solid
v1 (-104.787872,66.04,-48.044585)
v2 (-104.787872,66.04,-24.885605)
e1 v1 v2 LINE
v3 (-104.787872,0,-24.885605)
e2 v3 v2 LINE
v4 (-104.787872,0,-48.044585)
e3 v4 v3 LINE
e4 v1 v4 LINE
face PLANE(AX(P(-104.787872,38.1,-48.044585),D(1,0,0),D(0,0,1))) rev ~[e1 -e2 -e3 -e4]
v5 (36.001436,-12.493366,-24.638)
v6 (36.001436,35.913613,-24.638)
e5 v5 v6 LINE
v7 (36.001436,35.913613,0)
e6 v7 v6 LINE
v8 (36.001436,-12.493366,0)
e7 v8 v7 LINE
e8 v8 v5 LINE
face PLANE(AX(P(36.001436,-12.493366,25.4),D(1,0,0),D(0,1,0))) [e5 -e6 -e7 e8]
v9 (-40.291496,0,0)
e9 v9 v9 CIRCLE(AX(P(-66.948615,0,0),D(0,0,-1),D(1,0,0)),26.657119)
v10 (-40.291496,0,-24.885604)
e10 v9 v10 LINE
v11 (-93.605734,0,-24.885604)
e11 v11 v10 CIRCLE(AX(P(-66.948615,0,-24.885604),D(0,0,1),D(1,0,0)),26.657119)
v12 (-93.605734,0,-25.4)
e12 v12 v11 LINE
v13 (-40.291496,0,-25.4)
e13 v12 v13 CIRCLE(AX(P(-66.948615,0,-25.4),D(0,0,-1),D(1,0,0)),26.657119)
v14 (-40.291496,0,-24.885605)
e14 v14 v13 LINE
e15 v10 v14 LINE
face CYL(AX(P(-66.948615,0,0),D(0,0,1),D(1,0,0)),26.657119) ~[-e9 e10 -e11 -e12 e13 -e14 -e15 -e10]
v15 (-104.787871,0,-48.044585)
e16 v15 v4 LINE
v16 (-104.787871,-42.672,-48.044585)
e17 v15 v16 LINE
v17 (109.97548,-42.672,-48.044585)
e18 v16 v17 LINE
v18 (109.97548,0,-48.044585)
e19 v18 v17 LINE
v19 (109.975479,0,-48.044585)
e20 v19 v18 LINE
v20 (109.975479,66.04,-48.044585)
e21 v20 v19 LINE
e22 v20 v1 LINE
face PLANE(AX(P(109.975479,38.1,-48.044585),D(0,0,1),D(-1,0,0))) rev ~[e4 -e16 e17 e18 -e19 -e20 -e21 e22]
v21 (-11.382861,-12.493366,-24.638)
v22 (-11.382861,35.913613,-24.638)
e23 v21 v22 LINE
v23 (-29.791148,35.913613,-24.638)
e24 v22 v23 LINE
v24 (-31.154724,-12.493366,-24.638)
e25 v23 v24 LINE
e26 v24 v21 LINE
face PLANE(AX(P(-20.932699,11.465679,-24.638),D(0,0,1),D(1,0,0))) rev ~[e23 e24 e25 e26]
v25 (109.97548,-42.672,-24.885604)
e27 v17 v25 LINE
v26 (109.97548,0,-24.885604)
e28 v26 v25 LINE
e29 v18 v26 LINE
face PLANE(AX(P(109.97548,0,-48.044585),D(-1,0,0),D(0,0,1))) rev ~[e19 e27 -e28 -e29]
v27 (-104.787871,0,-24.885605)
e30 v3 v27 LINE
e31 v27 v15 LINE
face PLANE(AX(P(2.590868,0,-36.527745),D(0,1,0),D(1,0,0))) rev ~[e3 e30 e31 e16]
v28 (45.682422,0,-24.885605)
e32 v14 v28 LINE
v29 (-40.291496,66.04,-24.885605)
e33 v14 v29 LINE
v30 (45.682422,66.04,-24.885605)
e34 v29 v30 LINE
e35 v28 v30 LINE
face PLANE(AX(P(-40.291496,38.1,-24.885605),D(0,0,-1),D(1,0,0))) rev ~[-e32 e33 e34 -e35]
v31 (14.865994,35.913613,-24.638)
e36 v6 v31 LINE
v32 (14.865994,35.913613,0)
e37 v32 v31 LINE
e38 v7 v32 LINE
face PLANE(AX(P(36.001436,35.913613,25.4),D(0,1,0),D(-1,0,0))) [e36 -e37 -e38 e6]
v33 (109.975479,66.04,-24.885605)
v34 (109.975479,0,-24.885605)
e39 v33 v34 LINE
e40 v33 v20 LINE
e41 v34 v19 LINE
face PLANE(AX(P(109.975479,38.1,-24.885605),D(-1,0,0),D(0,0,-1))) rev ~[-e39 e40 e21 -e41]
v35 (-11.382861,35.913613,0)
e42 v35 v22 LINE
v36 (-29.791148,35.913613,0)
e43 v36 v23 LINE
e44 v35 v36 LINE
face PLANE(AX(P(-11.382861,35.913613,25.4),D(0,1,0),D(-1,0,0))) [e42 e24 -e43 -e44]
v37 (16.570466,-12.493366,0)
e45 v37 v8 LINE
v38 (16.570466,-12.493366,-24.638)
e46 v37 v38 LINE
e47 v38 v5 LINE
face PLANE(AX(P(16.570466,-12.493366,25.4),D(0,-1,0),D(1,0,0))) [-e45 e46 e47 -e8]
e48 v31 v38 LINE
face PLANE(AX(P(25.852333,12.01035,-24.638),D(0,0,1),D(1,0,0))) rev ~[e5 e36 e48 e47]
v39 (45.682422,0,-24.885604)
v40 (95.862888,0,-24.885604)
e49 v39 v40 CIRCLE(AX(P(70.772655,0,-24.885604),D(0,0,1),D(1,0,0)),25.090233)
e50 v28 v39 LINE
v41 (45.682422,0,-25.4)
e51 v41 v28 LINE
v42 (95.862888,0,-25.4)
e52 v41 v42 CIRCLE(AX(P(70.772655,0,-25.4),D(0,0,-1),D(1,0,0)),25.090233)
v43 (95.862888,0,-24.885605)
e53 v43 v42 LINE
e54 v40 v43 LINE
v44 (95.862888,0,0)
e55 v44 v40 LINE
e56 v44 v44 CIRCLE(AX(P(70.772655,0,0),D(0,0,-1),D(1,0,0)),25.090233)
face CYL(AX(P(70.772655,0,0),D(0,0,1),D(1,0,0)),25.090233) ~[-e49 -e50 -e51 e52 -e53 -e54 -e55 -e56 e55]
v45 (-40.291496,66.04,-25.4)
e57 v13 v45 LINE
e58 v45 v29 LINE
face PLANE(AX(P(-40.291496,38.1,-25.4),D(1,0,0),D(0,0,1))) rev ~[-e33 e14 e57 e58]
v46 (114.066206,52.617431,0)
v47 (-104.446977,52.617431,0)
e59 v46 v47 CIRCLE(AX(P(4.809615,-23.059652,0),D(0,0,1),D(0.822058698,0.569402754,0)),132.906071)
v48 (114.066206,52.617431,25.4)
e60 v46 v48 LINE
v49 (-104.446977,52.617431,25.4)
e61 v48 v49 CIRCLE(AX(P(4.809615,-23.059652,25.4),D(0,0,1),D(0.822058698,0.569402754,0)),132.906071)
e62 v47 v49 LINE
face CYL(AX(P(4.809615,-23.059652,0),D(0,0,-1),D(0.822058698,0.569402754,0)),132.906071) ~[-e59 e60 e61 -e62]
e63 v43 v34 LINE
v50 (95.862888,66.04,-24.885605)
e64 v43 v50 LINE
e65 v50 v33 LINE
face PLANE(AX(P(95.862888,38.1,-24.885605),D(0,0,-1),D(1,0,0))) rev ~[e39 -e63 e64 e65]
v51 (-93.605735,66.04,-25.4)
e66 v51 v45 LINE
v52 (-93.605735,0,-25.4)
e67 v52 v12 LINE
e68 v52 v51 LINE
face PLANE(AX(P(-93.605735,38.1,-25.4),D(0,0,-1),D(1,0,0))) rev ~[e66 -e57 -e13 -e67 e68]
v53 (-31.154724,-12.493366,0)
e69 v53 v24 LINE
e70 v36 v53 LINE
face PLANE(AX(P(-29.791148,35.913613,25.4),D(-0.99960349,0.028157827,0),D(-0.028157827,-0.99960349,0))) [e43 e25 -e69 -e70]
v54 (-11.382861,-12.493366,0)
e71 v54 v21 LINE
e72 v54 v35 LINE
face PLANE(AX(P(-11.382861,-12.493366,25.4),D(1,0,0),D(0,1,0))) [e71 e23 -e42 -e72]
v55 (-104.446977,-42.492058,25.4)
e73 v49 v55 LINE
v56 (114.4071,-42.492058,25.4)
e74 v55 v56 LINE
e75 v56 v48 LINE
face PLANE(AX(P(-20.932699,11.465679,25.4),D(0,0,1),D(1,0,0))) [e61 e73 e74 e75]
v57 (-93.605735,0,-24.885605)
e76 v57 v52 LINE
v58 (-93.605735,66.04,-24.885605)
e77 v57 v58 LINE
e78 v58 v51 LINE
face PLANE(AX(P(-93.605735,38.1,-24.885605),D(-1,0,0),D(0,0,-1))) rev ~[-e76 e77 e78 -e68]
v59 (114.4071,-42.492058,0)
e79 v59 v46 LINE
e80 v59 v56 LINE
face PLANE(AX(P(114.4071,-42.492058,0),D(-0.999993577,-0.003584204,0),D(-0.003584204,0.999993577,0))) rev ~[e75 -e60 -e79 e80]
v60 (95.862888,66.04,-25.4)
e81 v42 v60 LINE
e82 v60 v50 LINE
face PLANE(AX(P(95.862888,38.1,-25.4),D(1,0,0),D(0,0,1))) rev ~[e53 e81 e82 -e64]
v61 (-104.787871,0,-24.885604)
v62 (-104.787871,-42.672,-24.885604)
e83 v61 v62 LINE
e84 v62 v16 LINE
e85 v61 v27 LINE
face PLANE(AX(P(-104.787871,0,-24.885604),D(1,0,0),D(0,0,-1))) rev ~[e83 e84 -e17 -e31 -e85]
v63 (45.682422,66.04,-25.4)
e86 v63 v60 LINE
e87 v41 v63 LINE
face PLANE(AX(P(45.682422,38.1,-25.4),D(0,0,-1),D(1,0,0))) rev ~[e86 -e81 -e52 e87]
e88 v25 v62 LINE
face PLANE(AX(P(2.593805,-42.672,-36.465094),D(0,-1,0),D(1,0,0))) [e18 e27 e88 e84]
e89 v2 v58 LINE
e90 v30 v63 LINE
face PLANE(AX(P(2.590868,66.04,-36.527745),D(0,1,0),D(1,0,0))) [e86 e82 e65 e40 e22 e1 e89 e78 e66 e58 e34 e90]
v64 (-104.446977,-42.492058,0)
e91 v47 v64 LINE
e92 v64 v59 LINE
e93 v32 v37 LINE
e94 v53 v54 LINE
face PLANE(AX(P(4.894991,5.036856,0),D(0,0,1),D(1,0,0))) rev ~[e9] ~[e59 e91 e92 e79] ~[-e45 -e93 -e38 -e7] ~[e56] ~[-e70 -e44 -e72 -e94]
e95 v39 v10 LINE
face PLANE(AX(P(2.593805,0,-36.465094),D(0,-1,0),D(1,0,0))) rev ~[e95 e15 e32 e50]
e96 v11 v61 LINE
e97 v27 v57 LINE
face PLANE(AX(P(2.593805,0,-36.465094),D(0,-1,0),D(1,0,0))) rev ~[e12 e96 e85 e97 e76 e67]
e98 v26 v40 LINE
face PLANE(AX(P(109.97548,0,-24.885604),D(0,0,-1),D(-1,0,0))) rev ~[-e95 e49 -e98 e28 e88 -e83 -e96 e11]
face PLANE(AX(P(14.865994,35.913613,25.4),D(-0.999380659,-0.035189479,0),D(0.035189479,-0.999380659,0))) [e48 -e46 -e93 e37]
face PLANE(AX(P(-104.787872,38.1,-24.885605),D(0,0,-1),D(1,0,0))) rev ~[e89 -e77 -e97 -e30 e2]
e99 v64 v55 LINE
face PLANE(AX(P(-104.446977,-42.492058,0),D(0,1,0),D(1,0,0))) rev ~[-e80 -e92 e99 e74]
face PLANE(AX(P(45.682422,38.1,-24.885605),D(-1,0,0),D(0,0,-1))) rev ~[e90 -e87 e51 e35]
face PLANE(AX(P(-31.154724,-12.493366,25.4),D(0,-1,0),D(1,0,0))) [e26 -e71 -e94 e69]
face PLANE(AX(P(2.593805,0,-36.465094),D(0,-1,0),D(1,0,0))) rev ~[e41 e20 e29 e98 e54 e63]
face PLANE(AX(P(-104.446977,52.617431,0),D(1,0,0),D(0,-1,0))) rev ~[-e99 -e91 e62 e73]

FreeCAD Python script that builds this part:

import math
import FreeCAD as App
import Part
import Sketcher

V = App.Vector
Q = App.Units.Quantity

doc = App.newDocument("Part")
body = doc.addObject("PartDesign::Body", "Body")

# Sketch on XY plane
sketch1 = body.newObject("Sketcher::SketchObject", "Sketch")
sketch1.AttachmentSupport = (doc.getObject("XY_Plane"), [""])
sketch1.MapMode = "FlatFace"
sketch1.addGeometry([
    Part.LineSegment(V(114.4071, -42.492058, 0), V(114.066206, 52.617431, 0)),
    Part.ArcOfCircle(Part.Circle(V(4.809615, -23.059652, 0), V(0, 0, 1), 132.906071), math.radians(34.708588), math.radians(145.291412)),
    Part.LineSegment(V(-104.446977, 52.617431, 0), V(-104.446977, -42.492058, 0)),
    Part.LineSegment(V(-104.446977, -42.492058, 0), V(114.4071, -42.492058, 0)),
], False)
sketch1.addConstraint([
    Sketcher.Constraint("Coincident", 0, 2, 1, 1),
    Sketcher.Constraint("Coincident", 1, 2, 2, 1),
    Sketcher.Constraint("Coincident", 2, 2, 3, 1),
    Sketcher.Constraint("Coincident", 3, 2, 0, 1),
    Sketcher.Constraint("Vertical", 2),
    Sketcher.Constraint("Horizontal", 3),
    Sketcher.Constraint("Radius", 1, 132.906071),
    Sketcher.Constraint("Distance", 0, 95.1101),
    Sketcher.Constraint("DistanceY", 2, 2, 2, 1, 95.109489),
    Sketcher.Constraint("DistanceX", -1, 1, 3, 2, 114.4071),
    Sketcher.Constraint("DistanceX", 3, 1, 3, 2, 218.854077),
    Sketcher.Constraint("DistanceY", 1, 3, -1, 1, 23.059652),
    Sketcher.Constraint("DistanceY", -1, 1, 0, 2, 52.617431),
])
pad1 = body.newObject("PartDesign::Pad", "Pad")
pad1.Profile = sketch1
pad1.Length = Q("1 in")

# Sketch on XY plane
sketch2 = body.newObject("Sketcher::SketchObject", "Sketch001")
sketch2.AttachmentSupport = (doc.getObject("XY_Plane"), [""])
sketch2.MapMode = "FlatFace"
sketch2.AttachmentOffset = App.Placement(V(0, 0, 1 * 25.4), App.Rotation())
sketch2.addGeometry([
    Part.LineSegment(V(-30, 36, 0), V(-31, -12, 0)),  # 0
    Part.LineSegment(V(-31, -12, 0), V(-11, -12, 0)),  # 1
    Part.LineSegment(V(-11, -12, 0), V(-11, 36, 0)),  # 2
    Part.LineSegment(V(-11, 36, 0), V(-30, 36, 0)),  # 3
    Part.LineSegment(V(36, 36, 0), V(15, 36, 0)),  # 4
    Part.LineSegment(V(15, 36, 0), V(17, -12, 0)),  # 5
    Part.LineSegment(V(17, -12, 0), V(36, -12, 0)),  # 6
    Part.LineSegment(V(36, -12, 0), V(36, 36, 0)),  # 7
], False)
sketch2.addConstraint([
    Sketcher.Constraint("Coincident", 0, 2, 1, 1),
    Sketcher.Constraint("Coincident", 1, 2, 2, 1),
    Sketcher.Constraint("Coincident", 2, 2, 3, 1),
    Sketcher.Constraint("Coincident", 3, 2, 0, 1),
    Sketcher.Constraint("Coincident", 4, 2, 5, 1),
    Sketcher.Constraint("Coincident", 5, 2, 6, 1),
    Sketcher.Constraint("Coincident", 6, 2, 7, 1),
    Sketcher.Constraint("Coincident", 7, 2, 4, 1),
    Sketcher.Constraint("Horizontal", 1),
    Sketcher.Constraint("Vertical", 2),
    Sketcher.Constraint("Horizontal", 3),
    Sketcher.Constraint("Horizontal", 4),
    Sketcher.Constraint("Horizontal", 6),
    Sketcher.Constraint("Vertical", 7),
    Sketcher.Constraint("Horizontal", 3, 2, 4, 2),
    Sketcher.Constraint("Horizontal", 1, 2, 5, 2),
    Sketcher.Constraint("DistanceX", 4, 2, 4, 1, 21.135442),
    Sketcher.Constraint("DistanceX", 6, 1, 6, 2, 19.43097),
    Sketcher.Constraint("DistanceY", 2, 1, 2, 2, 48.406979),
    Sketcher.Constraint("Distance", 0, 48.42618),
    Sketcher.Constraint("DistanceX", 1, 1, 1, 2, 19.771863),
    Sketcher.Constraint("DistanceX", 1, 2, -1, 1, 11.382861),
    Sketcher.Constraint("DistanceX", 0, 2, 4, 2, 46.020718),
    Sketcher.Constraint("DistanceY", 0, 2, -1, 1, 12.493366),
])
pad2 = body.newObject("PartDesign::Pad", "Pad001")
pad2.Profile = sketch2
pad2.Length = Q("1.97 in")
pad2.Reversed = True

# Sketch on XY plane
sketch3 = body.newObject("Sketcher::SketchObject", "Sketch002")
sketch3.AttachmentSupport = (doc.getObject("XY_Plane"), [""])
sketch3.MapMode = "FlatFace"
sketch3.addGeometry([
    Part.Circle(V(71, 0, 0), V(0, 0, 1), 25),
    Part.Circle(V(-67, 0, 0), V(0, 0, 1), 27),
], False)
sketch3.addConstraint([
    Sketcher.Constraint("PointOnObject", 0, 3, -1),
    Sketcher.Constraint("PointOnObject", 1, 3, -1),
    Sketcher.Constraint("Diameter", 1, 53.314238),
    Sketcher.Constraint("Diameter", 0, 50.180466),
    Sketcher.Constraint("DistanceX", 1, 3, 0, 3, 137.72127),
    Sketcher.Constraint("DistanceX", -1, 1, 0, 3, 70.772655),
])
pad3 = body.newObject("PartDesign::Pad", "Pad002")
pad3.Profile = sketch3
pad3.Length = Q("1 in")
pad3.Reversed = True

# Sketch on XZ plane
sketch4 = body.newObject("Sketcher::SketchObject", "Sketch003")
sketch4.AttachmentSupport = (doc.getObject("XZ_Plane"), [""])
sketch4.MapMode = "FlatFace"
sketch4.addGeometry([
    Part.LineSegment(V(-105, -48, 0), V(110, -48, 0)),
    Part.LineSegment(V(110, -48, 0), V(110, -25, 0)),
    Part.LineSegment(V(110, -25, 0), V(-105, -25, 0)),
    Part.LineSegment(V(-105, -25, 0), V(-105, -48, 0)),
], False)
sketch4.addConstraint([
    Sketcher.Constraint("Coincident", 0, 2, 1, 1),
    Sketcher.Constraint("Coincident", 1, 2, 2, 1),
    Sketcher.Constraint("Coincident", 2, 2, 3, 1),
    Sketcher.Constraint("Coincident", 3, 2, 0, 1),
    Sketcher.Constraint("Horizontal", 0),
    Sketcher.Constraint("Vertical", 1),
    Sketcher.Constraint("Horizontal", 2),
    Sketcher.Constraint("Vertical", 3),
    Sketcher.Constraint("DistanceX", 0, 1, 0, 2, 214.763351),
    Sketcher.Constraint("DistanceY", 1, 1, 1, 2, 23.158981),
    Sketcher.Constraint("DistanceX", -1, 1, 0, 2, 109.97548),
    Sketcher.Constraint("DistanceY", 0, 2, -1, 1, 48.044585),
])
pad4 = body.newObject("PartDesign::Pad", "Pad003")
pad4.Profile = sketch4
pad4.Length = Q("1.68 in")

# Sketch on XZ plane
sketch5 = body.newObject("Sketcher::SketchObject", "Sketch004")
sketch5.AttachmentSupport = (doc.getObject("XZ_Plane"), [""])
sketch5.MapMode = "FlatFace"
sketch5.addGeometry([
    Part.LineSegment(V(-104.8, -48, 0), V(-104.8, -24.9, 0)),  # 0
    Part.LineSegment(V(-104.8, -24.9, 0), V(-93.6, -24.9, 0)),  # 1
    Part.LineSegment(V(-93.6, -24.9, 0), V(-93.6, -25.4, 0)),  # 2
    Part.LineSegment(V(-93.6, -25.4, 0), V(-40.3, -25.4, 0)),  # 3
    Part.LineSegment(V(-40.3, -25.4, 0), V(-40.3, -24.9, 0)),  # 4
    Part.LineSegment(V(-40.3, -24.9, 0), V(45.7, -24.9, 0)),  # 5
    Part.LineSegment(V(45.7, -24.9, 0), V(45.7, -25.4, 0)),  # 6
    Part.LineSegment(V(45.7, -25.4, 0), V(95.9, -25.4, 0)),  # 7
    Part.LineSegment(V(95.9, -25.4, 0), V(95.9, -24.9, 0)),  # 8
    Part.LineSegment(V(95.9, -24.9, 0), V(110, -24.9, 0)),  # 9
    Part.LineSegment(V(110, -24.9, 0), V(110, -48, 0)),  # 10
    Part.LineSegment(V(110, -48, 0), V(-104.8, -48, 0)),  # 11
], False)
sketch5.addConstraint([
    Sketcher.Constraint("Coincident", 0, 2, 1, 1),
    Sketcher.Constraint("Coincident", 1, 2, 2, 1),
    Sketcher.Constraint("Coincident", 2, 2, 3, 1),
    Sketcher.Constraint("Coincident", 3, 2, 4, 1),
    Sketcher.Constraint("Coincident", 4, 2, 5, 1),
    Sketcher.Constraint("Coincident", 5, 2, 6, 1),
    Sketcher.Constraint("Coincident", 6, 2, 7, 1),
    Sketcher.Constraint("Coincident", 7, 2, 8, 1),
    Sketcher.Constraint("Coincident", 8, 2, 9, 1),
    Sketcher.Constraint("Coincident", 9, 2, 10, 1),
    Sketcher.Constraint("Coincident", 10, 2, 11, 1),
    Sketcher.Constraint("Coincident", 11, 2, 0, 1),
    Sketcher.Constraint("Vertical", 0),
    Sketcher.Constraint("Horizontal", 1),
    Sketcher.Constraint("Vertical", 2),
    Sketcher.Constraint("Horizontal", 3),
    Sketcher.Constraint("Vertical", 4),
    Sketcher.Constraint("Horizontal", 5),
    Sketcher.Constraint("Vertical", 6),
    Sketcher.Constraint("Horizontal", 7),
    Sketcher.Constraint("Vertical", 8),
    Sketcher.Constraint("Horizontal", 9),
    Sketcher.Constraint("Vertical", 10),
    Sketcher.Constraint("Horizontal", 11),
    Sketcher.Constraint("Horizontal", 1, 2, 4, 2),
    Sketcher.Constraint("Horizontal", 3, 2, 6, 2),
    Sketcher.Constraint("Horizontal", 5, 2, 8, 2),
    Sketcher.Constraint("DistanceY", 2, 2, -1, 1, Q("1 in")),
    Sketcher.Constraint("DistanceX", 5, 1, 5, 2, Q("3.3847999 in")),
    Sketcher.Constraint("DistanceX", 3, 1, 3, 2, 53.314239),
    Sketcher.Constraint("DistanceX", 9, 1, 9, 2, 14.112591),
    Sketcher.Constraint("DistanceX", 11, 2, 11, 1, 214.763351),
    Sketcher.Constraint("DistanceY", 0, 1, 0, 2, 23.15898),
    Sketcher.Constraint("DistanceX", 1, 1, 1, 2, 11.182137),
    Sketcher.Constraint("DistanceY", 2, 2, 2, 1, 0.514395),
    Sketcher.Constraint("DistanceX", 0, 2, -1, 1, 104.787872),
])
pad5 = body.newObject("PartDesign::Pad", "Pad004")
pad5.Profile = sketch5
pad5.Length = Q("1.5 in")
pad5.Reversed = True

# Sketch on XZ plane
sketch6 = body.newObject("Sketcher::SketchObject", "Sketch005")
sketch6.AttachmentSupport = (doc.getObject("XZ_Plane"), [""])
sketch6.MapMode = "FlatFace"
sketch6.AttachmentOffset = App.Placement(V(0, 0, -1.5 * 25.4), App.Rotation())
sketch6.addGeometry([
    Part.LineSegment(V(-104.8, -48, 0), V(-104.8, -24.9, 0)),  # 0
    Part.LineSegment(V(-104.8, -24.9, 0), V(-93.6, -24.9, 0)),  # 1
    Part.LineSegment(V(-93.6, -24.9, 0), V(-93.6, -25.4, 0)),  # 2
    Part.LineSegment(V(-93.6, -25.4, 0), V(-40.3, -25.4, 0)),  # 3
    Part.LineSegment(V(-40.3, -25.4, 0), V(-40.3, -24.9, 0)),  # 4
    Part.LineSegment(V(-40.3, -24.9, 0), V(45.7, -24.9, 0)),  # 5
    Part.LineSegment(V(45.7, -24.9, 0), V(45.7, -25.4, 0)),  # 6
    Part.LineSegment(V(45.7, -25.4, 0), V(95.9, -25.4, 0)),  # 7
    Part.LineSegment(V(95.9, -25.4, 0), V(95.9, -24.9, 0)),  # 8
    Part.LineSegment(V(95.9, -24.9, 0), V(110, -24.9, 0)),  # 9
    Part.LineSegment(V(110, -24.9, 0), V(110, -48, 0)),  # 10
    Part.LineSegment(V(110, -48, 0), V(-104.8, -48, 0)),  # 11
], False)
sketch6.addConstraint([
    Sketcher.Constraint("Coincident", 0, 2, 1, 1),
    Sketcher.Constraint("Coincident", 1, 2, 2, 1),
    Sketcher.Constraint("Coincident", 2, 2, 3, 1),
    Sketcher.Constraint("Coincident", 3, 2, 4, 1),
    Sketcher.Constraint("Coincident", 4, 2, 5, 1),
    Sketcher.Constraint("Coincident", 5, 2, 6, 1),
    Sketcher.Constraint("Coincident", 6, 2, 7, 1),
    Sketcher.Constraint("Coincident", 7, 2, 8, 1),
    Sketcher.Constraint("Coincident", 8, 2, 9, 1),
    Sketcher.Constraint("Coincident", 9, 2, 10, 1),
    Sketcher.Constraint("Coincident", 10, 2, 11, 1),
    Sketcher.Constraint("Coincident", 11, 2, 0, 1),
    Sketcher.Constraint("Vertical", 0),
    Sketcher.Constraint("Horizontal", 1),
    Sketcher.Constraint("Vertical", 2),
    Sketcher.Constraint("Horizontal", 3),
    Sketcher.Constraint("Vertical", 4),
    Sketcher.Constraint("Horizontal", 5),
    Sketcher.Constraint("Vertical", 6),
    Sketcher.Constraint("Horizontal", 7),
    Sketcher.Constraint("Vertical", 8),
    Sketcher.Constraint("Horizontal", 9),
    Sketcher.Constraint("Vertical", 10),
    Sketcher.Constraint("Horizontal", 11),
    Sketcher.Constraint("Horizontal", 1, 2, 4, 2),
    Sketcher.Constraint("Horizontal", 3, 2, 6, 2),
    Sketcher.Constraint("Horizontal", 5, 2, 8, 2),
    Sketcher.Constraint("DistanceY", 2, 2, -1, 1, Q("1 in")),
    Sketcher.Constraint("DistanceX", 5, 1, 5, 2, Q("3.3847999 in")),
    Sketcher.Constraint("DistanceX", 3, 1, 3, 2, 53.314239),
    Sketcher.Constraint("DistanceX", 9, 1, 9, 2, 14.112591),
    Sketcher.Constraint("DistanceX", 11, 2, 11, 1, 214.763351),
    Sketcher.Constraint("DistanceY", 0, 1, 0, 2, 23.15898),
    Sketcher.Constraint("DistanceX", 1, 1, 1, 2, 11.182137),
    Sketcher.Constraint("DistanceY", 2, 2, 2, 1, 0.514395),
    Sketcher.Constraint("DistanceX", 0, 2, -1, 1, 104.787872),
])
pad6 = body.newObject("PartDesign::Pad", "Pad005")
pad6.Profile = sketch6
pad6.Length = Q("1.1 in")
pad6.Reversed = True

doc.recompute()
